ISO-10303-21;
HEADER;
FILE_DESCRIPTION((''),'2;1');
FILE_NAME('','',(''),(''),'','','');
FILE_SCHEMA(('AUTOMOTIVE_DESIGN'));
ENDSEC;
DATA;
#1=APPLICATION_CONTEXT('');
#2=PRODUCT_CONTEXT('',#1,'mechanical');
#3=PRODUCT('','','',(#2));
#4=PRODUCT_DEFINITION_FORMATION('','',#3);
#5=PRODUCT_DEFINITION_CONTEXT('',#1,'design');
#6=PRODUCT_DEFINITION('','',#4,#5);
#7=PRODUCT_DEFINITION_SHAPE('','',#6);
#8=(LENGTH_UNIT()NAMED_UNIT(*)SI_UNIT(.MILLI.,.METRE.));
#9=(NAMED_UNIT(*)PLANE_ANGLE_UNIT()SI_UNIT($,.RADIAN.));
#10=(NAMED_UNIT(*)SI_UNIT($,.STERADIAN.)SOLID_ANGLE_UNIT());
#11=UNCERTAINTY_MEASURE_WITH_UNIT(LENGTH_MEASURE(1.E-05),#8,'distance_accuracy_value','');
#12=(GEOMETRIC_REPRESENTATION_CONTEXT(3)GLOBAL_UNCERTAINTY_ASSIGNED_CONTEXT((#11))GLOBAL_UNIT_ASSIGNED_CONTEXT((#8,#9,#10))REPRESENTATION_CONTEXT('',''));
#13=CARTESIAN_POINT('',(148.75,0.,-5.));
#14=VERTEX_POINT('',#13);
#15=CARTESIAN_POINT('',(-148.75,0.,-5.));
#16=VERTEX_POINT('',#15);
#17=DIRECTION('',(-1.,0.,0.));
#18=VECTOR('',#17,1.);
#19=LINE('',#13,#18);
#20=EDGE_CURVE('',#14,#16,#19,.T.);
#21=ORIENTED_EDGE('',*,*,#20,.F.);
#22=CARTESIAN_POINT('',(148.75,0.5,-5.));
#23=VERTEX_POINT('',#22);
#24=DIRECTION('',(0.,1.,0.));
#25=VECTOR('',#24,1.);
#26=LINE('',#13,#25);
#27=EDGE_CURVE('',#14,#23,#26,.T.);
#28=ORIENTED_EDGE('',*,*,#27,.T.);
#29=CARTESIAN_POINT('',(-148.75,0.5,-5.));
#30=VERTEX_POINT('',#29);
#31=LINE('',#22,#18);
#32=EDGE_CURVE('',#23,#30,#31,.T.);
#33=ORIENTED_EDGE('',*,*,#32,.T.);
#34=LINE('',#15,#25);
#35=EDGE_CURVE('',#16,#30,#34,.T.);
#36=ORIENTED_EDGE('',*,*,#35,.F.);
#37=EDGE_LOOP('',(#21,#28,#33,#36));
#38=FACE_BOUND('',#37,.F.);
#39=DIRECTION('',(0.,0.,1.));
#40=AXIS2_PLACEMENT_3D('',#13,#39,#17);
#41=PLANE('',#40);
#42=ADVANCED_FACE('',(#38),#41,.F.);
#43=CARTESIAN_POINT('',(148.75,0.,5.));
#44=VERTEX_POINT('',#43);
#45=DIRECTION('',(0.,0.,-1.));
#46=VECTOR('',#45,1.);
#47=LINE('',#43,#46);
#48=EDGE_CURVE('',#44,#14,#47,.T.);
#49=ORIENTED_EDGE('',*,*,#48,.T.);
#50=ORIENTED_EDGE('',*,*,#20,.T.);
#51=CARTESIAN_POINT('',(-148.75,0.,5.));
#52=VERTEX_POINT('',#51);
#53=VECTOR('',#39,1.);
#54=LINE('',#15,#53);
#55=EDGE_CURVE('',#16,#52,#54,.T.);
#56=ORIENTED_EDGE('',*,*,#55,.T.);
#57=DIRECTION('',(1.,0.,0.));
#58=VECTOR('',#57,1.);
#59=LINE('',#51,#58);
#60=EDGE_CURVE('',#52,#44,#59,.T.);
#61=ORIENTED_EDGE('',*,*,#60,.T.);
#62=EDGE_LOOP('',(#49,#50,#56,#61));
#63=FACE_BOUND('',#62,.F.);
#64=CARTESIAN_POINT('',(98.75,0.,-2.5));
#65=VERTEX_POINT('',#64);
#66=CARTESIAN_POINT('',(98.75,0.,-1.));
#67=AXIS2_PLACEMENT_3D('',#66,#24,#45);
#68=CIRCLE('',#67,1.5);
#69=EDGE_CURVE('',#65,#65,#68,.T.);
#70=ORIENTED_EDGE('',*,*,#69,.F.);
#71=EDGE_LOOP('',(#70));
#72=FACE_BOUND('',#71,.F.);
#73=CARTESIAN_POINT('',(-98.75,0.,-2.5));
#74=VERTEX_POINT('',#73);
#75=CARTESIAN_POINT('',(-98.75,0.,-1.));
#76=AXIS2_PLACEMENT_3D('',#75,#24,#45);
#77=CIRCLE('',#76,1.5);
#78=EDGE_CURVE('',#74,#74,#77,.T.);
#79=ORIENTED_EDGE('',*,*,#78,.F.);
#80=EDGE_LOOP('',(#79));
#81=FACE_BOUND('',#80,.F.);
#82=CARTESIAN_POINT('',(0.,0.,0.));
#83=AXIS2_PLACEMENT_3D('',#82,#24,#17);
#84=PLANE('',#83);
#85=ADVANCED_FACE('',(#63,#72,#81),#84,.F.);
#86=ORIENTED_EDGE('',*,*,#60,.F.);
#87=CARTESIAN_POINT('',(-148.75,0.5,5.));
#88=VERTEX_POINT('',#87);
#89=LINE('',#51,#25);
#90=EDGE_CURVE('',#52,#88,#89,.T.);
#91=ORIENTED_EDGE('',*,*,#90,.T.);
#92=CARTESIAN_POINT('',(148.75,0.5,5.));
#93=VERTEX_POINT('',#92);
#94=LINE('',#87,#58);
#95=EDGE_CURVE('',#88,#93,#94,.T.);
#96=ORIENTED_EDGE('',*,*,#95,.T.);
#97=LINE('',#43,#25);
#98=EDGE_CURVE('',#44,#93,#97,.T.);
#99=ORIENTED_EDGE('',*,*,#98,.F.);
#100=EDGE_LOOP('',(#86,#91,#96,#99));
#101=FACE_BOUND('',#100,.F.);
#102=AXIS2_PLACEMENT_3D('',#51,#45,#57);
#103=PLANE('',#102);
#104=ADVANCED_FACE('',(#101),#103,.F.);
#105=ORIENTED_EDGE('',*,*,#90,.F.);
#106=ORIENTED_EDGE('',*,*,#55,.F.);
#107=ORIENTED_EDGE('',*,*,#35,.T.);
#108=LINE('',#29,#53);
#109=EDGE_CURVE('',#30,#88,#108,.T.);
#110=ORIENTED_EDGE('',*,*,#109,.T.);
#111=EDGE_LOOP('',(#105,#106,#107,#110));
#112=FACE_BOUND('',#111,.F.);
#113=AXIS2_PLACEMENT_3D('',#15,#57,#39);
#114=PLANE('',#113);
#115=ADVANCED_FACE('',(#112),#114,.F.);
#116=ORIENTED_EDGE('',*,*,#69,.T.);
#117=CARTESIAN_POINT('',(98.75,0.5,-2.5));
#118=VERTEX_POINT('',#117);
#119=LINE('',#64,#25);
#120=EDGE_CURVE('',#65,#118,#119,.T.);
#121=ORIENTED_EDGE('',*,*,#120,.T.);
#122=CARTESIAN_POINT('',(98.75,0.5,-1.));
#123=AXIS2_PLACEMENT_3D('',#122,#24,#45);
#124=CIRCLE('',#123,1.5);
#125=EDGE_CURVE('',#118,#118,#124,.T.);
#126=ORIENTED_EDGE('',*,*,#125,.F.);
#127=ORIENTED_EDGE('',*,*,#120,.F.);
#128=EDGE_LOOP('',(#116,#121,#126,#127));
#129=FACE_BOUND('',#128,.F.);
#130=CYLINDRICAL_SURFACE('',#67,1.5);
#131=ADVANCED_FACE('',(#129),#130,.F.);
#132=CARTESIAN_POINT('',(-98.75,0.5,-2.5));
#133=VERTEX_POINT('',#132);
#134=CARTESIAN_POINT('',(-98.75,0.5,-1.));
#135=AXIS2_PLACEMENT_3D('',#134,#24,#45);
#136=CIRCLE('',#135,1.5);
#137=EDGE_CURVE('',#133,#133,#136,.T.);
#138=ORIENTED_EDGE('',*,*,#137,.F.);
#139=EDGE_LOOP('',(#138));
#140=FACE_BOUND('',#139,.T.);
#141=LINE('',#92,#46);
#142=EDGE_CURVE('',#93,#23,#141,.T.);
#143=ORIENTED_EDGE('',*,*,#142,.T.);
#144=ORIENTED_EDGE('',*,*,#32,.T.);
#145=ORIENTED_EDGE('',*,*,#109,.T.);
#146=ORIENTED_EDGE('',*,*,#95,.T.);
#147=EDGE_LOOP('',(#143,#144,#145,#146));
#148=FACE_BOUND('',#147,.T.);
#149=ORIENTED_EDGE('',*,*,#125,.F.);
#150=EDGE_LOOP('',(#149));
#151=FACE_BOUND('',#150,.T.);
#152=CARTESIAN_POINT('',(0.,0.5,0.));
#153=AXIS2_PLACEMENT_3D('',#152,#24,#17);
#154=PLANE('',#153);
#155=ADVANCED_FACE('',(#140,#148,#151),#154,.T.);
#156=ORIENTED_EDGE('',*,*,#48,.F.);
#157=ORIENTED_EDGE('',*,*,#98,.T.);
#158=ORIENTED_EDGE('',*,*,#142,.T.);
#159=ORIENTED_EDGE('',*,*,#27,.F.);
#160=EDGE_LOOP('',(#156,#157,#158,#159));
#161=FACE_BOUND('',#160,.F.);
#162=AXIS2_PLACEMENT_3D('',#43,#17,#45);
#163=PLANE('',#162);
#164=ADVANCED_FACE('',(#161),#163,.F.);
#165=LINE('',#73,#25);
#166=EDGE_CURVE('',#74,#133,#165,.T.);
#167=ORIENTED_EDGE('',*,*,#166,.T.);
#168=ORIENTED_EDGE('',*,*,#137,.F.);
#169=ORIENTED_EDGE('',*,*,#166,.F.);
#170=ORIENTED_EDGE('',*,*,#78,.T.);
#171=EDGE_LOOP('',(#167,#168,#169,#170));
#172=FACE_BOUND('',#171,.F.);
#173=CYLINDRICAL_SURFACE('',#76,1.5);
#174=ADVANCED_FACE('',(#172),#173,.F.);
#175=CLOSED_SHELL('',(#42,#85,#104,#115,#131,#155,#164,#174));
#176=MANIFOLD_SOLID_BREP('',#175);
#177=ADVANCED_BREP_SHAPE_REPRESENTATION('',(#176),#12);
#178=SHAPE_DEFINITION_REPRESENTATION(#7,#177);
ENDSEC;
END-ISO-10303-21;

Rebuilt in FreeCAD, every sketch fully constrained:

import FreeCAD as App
import Part
import Sketcher

V = App.Vector


def add_polygon(sketch, points):
    """Adds a closed chain of lines whose ends are joined by coincident constraints."""
    first, n = sketch.GeometryCount, len(points)
    for a, b in zip(points, points[1:] + points[:1]):
        sketch.addGeometry(Part.LineSegment(App.Vector(*a, 0), App.Vector(*b, 0)), False)
    for i in range(n):
        sketch.addConstraint(Sketcher.Constraint("Coincident", first + i, 2, first + (i + 1) % n, 1))

doc = App.newDocument("Part")
body = doc.addObject("PartDesign::Body", "Body")

# Sketch on XZ plane
sketch1 = doc.addObject("Sketcher::SketchObject", "Sketch")
body.addObject(sketch1)
sketch1.AttachmentSupport = (doc.XZ_Plane, [""])
sketch1.MapMode = "FlatFace"
add_polygon(sketch1, [(-149, -5), (-149, 5), (149, 5), (149, -5)])  # lines 0-3
sketch1.addConstraint(Sketcher.Constraint("Vertical", 0))
sketch1.addConstraint(Sketcher.Constraint("Horizontal", 1))
sketch1.addConstraint(Sketcher.Constraint("Vertical", 2))
sketch1.addConstraint(Sketcher.Constraint("Horizontal", 3))
sketch1.addConstraint(Sketcher.Constraint("Symmetric", 0, 2, 2, 2, -1, 1))
sketch1.addConstraint(Sketcher.Constraint("DistanceY", 0, 1, 0, 2, 10.0))
sketch1.addConstraint(Sketcher.Constraint("DistanceX", 1, 1, 1, 2, 297.5))
pad1 = doc.addObject("PartDesign::Pad", "Pad")
body.addObject(pad1)
pad1.Profile = sketch1
pad1.Length = 0.5
pad1.Reversed = True

# Sketch on XZ plane
sketch2 = doc.addObject("Sketcher::SketchObject", "Sketch001")
body.addObject(sketch2)
sketch2.AttachmentSupport = (doc.XZ_Plane, [""])
sketch2.MapMode = "FlatFace"
sketch2.addGeometry(Part.Circle(V(-98.8, -1, 0), V(0, 0, 1), 1.5), False)
sketch2.addGeometry(Part.Circle(V(98.8, -1, 0), V(0, 0, 1), 1.5), False)
sketch2.addConstraint(Sketcher.Constraint("Equal", 0, 1))
sketch2.addConstraint(Sketcher.Constraint("Symmetric", 0, 3, 1, 3, -2))
sketch2.addConstraint(Sketcher.Constraint("Diameter", 0, 3.0))
sketch2.addConstraint(Sketcher.Constraint("DistanceY", 0, 3, -1, 1, 1.0))
sketch2.addConstraint(Sketcher.Constraint("DistanceX", 0, 3, 1, 3, 197.5))
doc.recompute()
hole = doc.addObject("PartDesign::Hole", "Hole")
body.addObject(hole)
hole.Profile = sketch2
hole.ThreadType = "None"
hole.Diameter = 3
hole.DepthType = "ThroughAll"

doc.recompute()
